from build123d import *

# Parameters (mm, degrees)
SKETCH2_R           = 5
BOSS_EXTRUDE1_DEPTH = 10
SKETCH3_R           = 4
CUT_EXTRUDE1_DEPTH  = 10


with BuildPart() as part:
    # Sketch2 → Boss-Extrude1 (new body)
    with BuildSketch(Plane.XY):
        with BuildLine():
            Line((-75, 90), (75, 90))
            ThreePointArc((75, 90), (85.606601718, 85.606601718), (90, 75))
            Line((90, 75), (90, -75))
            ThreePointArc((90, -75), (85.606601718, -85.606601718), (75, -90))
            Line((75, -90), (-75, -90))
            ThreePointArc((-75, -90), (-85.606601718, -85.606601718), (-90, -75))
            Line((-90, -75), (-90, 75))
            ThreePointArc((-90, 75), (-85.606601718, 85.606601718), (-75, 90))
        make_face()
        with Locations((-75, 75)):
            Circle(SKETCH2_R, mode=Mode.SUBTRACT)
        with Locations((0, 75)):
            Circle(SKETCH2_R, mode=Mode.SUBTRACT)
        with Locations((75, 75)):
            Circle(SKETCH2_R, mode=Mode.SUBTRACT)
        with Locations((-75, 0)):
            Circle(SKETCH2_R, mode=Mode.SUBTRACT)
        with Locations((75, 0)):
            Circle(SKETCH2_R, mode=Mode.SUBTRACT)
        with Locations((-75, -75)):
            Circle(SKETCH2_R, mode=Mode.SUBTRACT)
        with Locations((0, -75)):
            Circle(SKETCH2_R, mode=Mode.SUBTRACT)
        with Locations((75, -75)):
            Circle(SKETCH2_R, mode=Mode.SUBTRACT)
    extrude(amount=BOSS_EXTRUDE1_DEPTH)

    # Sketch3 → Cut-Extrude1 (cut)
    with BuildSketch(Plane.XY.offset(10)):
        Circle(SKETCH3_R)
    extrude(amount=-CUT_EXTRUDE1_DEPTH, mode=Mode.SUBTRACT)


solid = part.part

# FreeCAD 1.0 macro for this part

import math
import FreeCAD as App
import Part
import Sketcher
Q = App.Units.Quantity

doc = App.newDocument("Part")
params = doc.addObject("Spreadsheet::Sheet", "Params")
for row, (alias, value) in enumerate([
    ("sketch1_diameter", "10 mm"),
    ("sketch1_radius", "15 mm"),
    ("sketch1_width", "150 mm"),
    ("pad1_length", "10 mm"),
    ("sketch2_diameter", "8 mm"),
    ("pocket1_length", "10 mm"),
], start=1):
    params.set(f"A{row}", alias)
    params.set(f"B{row}", "=" + value)
    params.setAlias(f"B{row}", alias)

body = doc.addObject("PartDesign::Body", "Body")

# Sketch on XY plane
sketch1 = body.newObject("Sketcher::SketchObject", "Sketch")
sketch1.AttachmentSupport = (doc.getObject("XY_Plane"), [""])
sketch1.MapMode = "FlatFace"
sketch1.addGeometry(Part.LineSegment(App.Vector(75, 90, 0), App.Vector(-75, 90, 0)), False)
sketch1.addGeometry(Part.ArcOfCircle(Part.Circle(App.Vector(-75, 75, 0), App.Vector(0, 0, 1), 15), math.radians(90), math.radians(180)), False)
sketch1.addGeometry(Part.LineSegment(App.Vector(-90, 75, 0), App.Vector(-90, -75, 0)), False)
sketch1.addGeometry(Part.ArcOfCircle(Part.Circle(App.Vector(-75, -75, 0), App.Vector(0, 0, 1), 15), math.radians(180), math.radians(270)), False)
sketch1.addGeometry(Part.LineSegment(App.Vector(-75, -90, 0), App.Vector(75, -90, 0)), False)
sketch1.addGeometry(Part.ArcOfCircle(Part.Circle(App.Vector(75, -75, 0), App.Vector(0, 0, 1), 15), math.radians(-90), math.radians(0)), False)
sketch1.addGeometry(Part.LineSegment(App.Vector(90, -75, 0), App.Vector(90, 75, 0)), False)
sketch1.addGeometry(Part.ArcOfCircle(Part.Circle(App.Vector(75, 75, 0), App.Vector(0, 0, 1), 15), math.radians(0), math.radians(90)), False)
sketch1.addGeometry(Part.Circle(App.Vector(75, -75, 0), App.Vector(0, 0, 1), 5), False)
sketch1.addGeometry(Part.Circle(App.Vector(0, -75, 0), App.Vector(0, 0, 1), 5), False)
sketch1.addGeometry(Part.Circle(App.Vector(-75, -75, 0), App.Vector(0, 0, 1), 5), False)
sketch1.addGeometry(Part.Circle(App.Vector(75, 0, 0), App.Vector(0, 0, 1), 5), False)
sketch1.addGeometry(Part.Circle(App.Vector(75, 75, 0), App.Vector(0, 0, 1), 5), False)
sketch1.addGeometry(Part.Circle(App.Vector(-75, 0, 0), App.Vector(0, 0, 1), 5), False)
sketch1.addGeometry(Part.Circle(App.Vector(0, 75, 0), App.Vector(0, 0, 1), 5), False)
sketch1.addGeometry(Part.Circle(App.Vector(-75, 75, 0), App.Vector(0, 0, 1), 5), False)
sketch1.addConstraint(Sketcher.Constraint("Tangent", 0, 2, 1, 1))
sketch1.addConstraint(Sketcher.Constraint("Tangent", 1, 2, 2, 1))
sketch1.addConstraint(Sketcher.Constraint("Tangent", 2, 2, 3, 1))
sketch1.addConstraint(Sketcher.Constraint("Tangent", 3, 2, 4, 1))
sketch1.addConstraint(Sketcher.Constraint("Tangent", 4, 2, 5, 1))
sketch1.addConstraint(Sketcher.Constraint("Tangent", 5, 2, 6, 1))
sketch1.addConstraint(Sketcher.Constraint("Tangent", 6, 2, 7, 1))
sketch1.addConstraint(Sketcher.Constraint("Tangent", 7, 2, 0, 1))
sketch1.addConstraint(Sketcher.Constraint("Horizontal", 0))
sketch1.addConstraint(Sketcher.Constraint("Vertical", 2))
sketch1.addConstraint(Sketcher.Constraint("Horizontal", 4))
sketch1.addConstraint(Sketcher.Constraint("Vertical", 6))
sketch1.addConstraint(Sketcher.Constraint("Coincident", 8, 3, 5, 3))
sketch1.addConstraint(Sketcher.Constraint("Coincident", 10, 3, 3, 3))
sketch1.addConstraint(Sketcher.Constraint("Coincident", 12, 3, 7, 3))
sketch1.addConstraint(Sketcher.Constraint("Coincident", 15, 3, 1, 3))
sketch1.addConstraint(Sketcher.Constraint("Equal", 1, 3))
sketch1.addConstraint(Sketcher.Constraint("Equal", 3, 5))
sketch1.addConstraint(Sketcher.Constraint("Equal", 5, 7))
sketch1.addConstraint(Sketcher.Constraint("Equal", 8, 9))
sketch1.addConstraint(Sketcher.Constraint("Equal", 9, 10))
sketch1.addConstraint(Sketcher.Constraint("Equal", 10, 11))
sketch1.addConstraint(Sketcher.Constraint("Equal", 11, 12))
sketch1.addConstraint(Sketcher.Constraint("Equal", 12, 13))
sketch1.addConstraint(Sketcher.Constraint("Equal", 13, 14))
sketch1.addConstraint(Sketcher.Constraint("Equal", 14, 15))
sketch1.addConstraint(Sketcher.Constraint("Symmetric", 1, 3, 5, 3, -1, 1))
sketch1.addConstraint(Sketcher.Constraint("Symmetric", 11, 3, 13, 3, -1, 1))
sketch1.addConstraint(Sketcher.Constraint("Symmetric", 9, 3, 14, 3, -1, 1))
sketch1.addConstraint(Sketcher.Constraint("PointOnObject", 9, 3, -2))
sketch1.addConstraint(Sketcher.Constraint("PointOnObject", 11, 3, -1))
sketch1.addConstraint(Sketcher.Constraint("Horizontal", 8, 3, 9, 3))
sketch1.addConstraint(Sketcher.Constraint("Vertical", 8, 3, 11, 3))
sketch1.addConstraint(Sketcher.Constraint("Equal", 4, 2))
sketch1.addConstraint(Sketcher.Constraint("Diameter", 8, Q("10 mm")))
sketch1.addConstraint(Sketcher.Constraint("Radius", 1, Q("15 mm")))
sketch1.addConstraint(Sketcher.Constraint("DistanceX", 0, 2, 0, 1, Q("150 mm")))
sketch1.setExpression("Constraints[34]", "Params.sketch1_diameter")
sketch1.setExpression("Constraints[35]", "Params.sketch1_radius")
sketch1.setExpression("Constraints[36]", "Params.sketch1_width")
pad1 = body.newObject("PartDesign::Pad", "Pad")
pad1.Profile = sketch1
pad1.setExpression("Length", "Params.pad1_length")

# Sketch on XY plane
sketch2 = body.newObject("Sketcher::SketchObject", "Sketch001")
sketch2.AttachmentSupport = (doc.getObject("XY_Plane"), [""])
sketch2.MapMode = "FlatFace"
sketch2.AttachmentOffset = App.Placement(App.Vector(0, 0, 10), App.Rotation())
sketch2.addGeometry(Part.Circle(App.Vector(0, 0, 0), App.Vector(0, 0, 1), 4), False)
sketch2.addConstraint(Sketcher.Constraint("Coincident", 0, 3, -1, 1))
sketch2.addConstraint(Sketcher.Constraint("Diameter", 0, Q("8 mm")))
sketch2.setExpression("Constraints[1]", "Params.sketch2_diameter")
pocket1 = body.newObject("PartDesign::Pocket", "Pocket")
pocket1.Profile = sketch2
pocket1.setExpression("Length", "Params.pocket1_length")

doc.recompute()
